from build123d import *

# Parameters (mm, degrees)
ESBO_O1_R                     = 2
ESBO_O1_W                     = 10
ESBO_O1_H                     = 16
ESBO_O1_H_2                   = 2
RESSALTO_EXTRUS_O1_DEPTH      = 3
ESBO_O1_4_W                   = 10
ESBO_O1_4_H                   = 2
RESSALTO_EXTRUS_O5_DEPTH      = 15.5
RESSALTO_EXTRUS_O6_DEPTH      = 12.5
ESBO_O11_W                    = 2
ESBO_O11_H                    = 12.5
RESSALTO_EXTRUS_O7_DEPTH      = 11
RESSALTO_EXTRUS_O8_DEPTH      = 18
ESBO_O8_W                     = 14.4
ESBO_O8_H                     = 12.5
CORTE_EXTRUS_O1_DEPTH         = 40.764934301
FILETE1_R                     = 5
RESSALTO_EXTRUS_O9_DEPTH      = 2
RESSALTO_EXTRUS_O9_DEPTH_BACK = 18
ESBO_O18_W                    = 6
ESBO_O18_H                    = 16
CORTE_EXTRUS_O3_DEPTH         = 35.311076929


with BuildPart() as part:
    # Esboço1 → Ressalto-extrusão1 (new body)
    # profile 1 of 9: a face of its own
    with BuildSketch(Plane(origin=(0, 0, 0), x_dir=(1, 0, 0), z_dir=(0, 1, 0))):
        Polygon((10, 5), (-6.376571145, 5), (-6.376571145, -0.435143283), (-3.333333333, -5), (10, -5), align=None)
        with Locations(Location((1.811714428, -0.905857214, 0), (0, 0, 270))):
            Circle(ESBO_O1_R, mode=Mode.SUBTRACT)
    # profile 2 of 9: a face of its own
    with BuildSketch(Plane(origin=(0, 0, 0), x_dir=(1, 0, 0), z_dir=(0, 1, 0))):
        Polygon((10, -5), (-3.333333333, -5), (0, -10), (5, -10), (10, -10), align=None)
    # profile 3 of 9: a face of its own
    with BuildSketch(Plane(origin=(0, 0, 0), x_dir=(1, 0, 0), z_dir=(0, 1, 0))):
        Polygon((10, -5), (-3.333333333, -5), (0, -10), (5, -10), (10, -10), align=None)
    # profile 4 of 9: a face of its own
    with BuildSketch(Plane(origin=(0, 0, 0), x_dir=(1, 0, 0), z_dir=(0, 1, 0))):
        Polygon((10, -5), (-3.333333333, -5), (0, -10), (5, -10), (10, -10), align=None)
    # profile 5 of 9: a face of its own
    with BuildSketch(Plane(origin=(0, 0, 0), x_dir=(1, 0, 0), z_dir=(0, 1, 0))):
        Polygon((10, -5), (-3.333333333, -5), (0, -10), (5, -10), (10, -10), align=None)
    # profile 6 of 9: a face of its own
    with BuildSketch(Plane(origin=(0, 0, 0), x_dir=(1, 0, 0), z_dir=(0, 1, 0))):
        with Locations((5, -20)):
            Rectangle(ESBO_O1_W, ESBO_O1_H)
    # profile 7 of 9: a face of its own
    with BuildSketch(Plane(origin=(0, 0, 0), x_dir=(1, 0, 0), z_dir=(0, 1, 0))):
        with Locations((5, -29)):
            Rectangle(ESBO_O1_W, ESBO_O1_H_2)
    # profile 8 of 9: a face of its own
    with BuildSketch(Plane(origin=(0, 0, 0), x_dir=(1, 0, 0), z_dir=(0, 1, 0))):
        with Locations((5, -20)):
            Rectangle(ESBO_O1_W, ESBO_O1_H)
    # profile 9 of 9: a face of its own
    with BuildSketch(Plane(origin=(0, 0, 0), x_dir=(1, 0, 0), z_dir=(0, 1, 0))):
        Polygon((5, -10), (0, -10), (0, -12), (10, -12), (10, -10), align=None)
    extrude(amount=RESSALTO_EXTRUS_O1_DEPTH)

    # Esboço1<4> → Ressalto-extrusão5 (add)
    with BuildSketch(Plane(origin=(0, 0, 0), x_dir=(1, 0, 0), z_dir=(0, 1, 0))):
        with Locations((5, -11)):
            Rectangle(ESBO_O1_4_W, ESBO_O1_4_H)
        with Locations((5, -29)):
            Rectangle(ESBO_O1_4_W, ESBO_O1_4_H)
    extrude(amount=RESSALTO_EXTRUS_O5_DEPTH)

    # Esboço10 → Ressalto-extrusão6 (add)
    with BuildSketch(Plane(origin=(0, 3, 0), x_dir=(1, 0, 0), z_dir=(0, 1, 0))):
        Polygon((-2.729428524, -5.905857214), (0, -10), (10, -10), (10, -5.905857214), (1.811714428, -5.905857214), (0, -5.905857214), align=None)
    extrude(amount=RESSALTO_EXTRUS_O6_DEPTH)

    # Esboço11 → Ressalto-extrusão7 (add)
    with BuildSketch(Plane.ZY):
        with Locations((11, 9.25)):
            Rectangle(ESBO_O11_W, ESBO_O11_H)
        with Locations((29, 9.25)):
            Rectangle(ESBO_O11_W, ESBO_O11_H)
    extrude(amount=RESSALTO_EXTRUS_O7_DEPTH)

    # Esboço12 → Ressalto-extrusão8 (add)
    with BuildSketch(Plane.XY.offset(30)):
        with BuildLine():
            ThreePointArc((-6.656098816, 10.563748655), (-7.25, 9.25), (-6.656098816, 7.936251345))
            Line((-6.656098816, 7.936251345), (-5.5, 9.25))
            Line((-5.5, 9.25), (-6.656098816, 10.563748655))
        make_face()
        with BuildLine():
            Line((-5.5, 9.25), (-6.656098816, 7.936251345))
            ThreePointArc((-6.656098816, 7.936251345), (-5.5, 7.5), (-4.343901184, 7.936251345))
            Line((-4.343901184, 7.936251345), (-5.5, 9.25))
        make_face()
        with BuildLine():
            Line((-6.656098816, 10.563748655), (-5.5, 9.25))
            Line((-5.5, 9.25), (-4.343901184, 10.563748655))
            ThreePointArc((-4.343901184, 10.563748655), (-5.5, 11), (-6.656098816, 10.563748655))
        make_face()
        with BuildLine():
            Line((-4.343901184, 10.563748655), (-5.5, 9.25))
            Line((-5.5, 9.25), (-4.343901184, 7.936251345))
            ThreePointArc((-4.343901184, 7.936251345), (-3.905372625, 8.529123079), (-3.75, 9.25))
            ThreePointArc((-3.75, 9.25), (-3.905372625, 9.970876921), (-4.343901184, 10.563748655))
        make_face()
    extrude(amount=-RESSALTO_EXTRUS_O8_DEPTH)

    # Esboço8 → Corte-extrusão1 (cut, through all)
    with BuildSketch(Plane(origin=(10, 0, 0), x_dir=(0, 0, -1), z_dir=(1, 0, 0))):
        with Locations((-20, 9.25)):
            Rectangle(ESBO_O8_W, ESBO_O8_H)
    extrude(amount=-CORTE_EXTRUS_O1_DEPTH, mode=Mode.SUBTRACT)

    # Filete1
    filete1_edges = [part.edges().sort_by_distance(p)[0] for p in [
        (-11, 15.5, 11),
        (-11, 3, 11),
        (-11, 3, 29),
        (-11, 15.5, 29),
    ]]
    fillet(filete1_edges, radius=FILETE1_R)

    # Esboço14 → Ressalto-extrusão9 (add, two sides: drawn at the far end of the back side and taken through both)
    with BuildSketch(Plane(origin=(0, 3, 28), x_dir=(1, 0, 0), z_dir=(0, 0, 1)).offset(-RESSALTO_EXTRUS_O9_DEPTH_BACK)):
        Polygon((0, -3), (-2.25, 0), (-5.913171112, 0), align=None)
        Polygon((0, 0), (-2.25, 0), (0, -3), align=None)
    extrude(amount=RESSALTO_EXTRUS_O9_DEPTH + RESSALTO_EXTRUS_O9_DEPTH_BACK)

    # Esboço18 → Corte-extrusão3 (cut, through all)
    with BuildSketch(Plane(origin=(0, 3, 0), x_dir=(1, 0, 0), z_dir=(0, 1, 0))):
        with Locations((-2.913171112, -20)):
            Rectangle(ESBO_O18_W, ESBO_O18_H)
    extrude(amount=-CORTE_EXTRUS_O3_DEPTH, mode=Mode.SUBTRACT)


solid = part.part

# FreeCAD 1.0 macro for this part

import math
import FreeCAD as App
import Part
import Sketcher

V = App.Vector
Q = App.Units.Quantity


def edges_at(feature, points):
    """Names of the edges that pass closest to the given points."""
    edges = feature.Shape.Edges
    near = lambda p: min(range(len(edges)), key=lambda i: edges[i].distToShape(Part.Vertex(*p))[0])
    return sorted({f"Edge{near(p) + 1}" for p in points})


def add_polygon(sketch, points):
    """Adds a closed chain of lines whose ends are joined by coincident constraints."""
    first, n = sketch.GeometryCount, len(points)
    for a, b in zip(points, points[1:] + points[:1]):
        sketch.addGeometry(Part.LineSegment(App.Vector(*a, 0), App.Vector(*b, 0)), False)
    for i in range(n):
        sketch.addConstraint(Sketcher.Constraint("Coincident", first + i, 2, first + (i + 1) % n, 1))

doc = App.newDocument("Part")
body = doc.addObject("PartDesign::Body", "Body")

# Sketch on XZ plane
sketch1 = body.newObject("Sketcher::SketchObject", "Sketch")
sketch1.AttachmentSupport = (doc.getObject("XZ_Plane"), [""])
sketch1.MapMode = "FlatFace"
add_polygon(sketch1, [(10, -5), (-6.4, -5), (-6.4, 0.4), (-3.3, 5), (0, 10), (0, 30), (10, 30)])  # lines 0-6
sketch1.addGeometry(Part.Circle(V(1.8, 0.9, 0), V(0, 0, 1), 2), False)  # 7
sketch1.addConstraint([
    Sketcher.Constraint("Horizontal", 0),
    Sketcher.Constraint("Vertical", 1),
    Sketcher.Constraint("Vertical", 4),
    Sketcher.Constraint("Horizontal", 5),
    Sketcher.Constraint("Vertical", 6),
    Sketcher.Constraint("PointOnObject", 3, 2, -2),
    Sketcher.Constraint("Parallel", 2, 3),
    Sketcher.Constraint("Diameter", 7, Q("4 mm")),
    Sketcher.Constraint("DistanceX", 5, 1, 5, 2, Q("10 mm")),
    Sketcher.Constraint("DistanceY", 4, 1, 4, 2, Q("20 mm")),
    Sketcher.Constraint("DistanceY", 6, 2, 6, 1, Q("35 mm")),
    Sketcher.Constraint("DistanceY", 0, 2, -1, 1, Q("5 mm")),
    Sketcher.Constraint("DistanceY", -1, 1, 2, 2, Q("5 mm")),
    Sketcher.Constraint("DistanceX", 0, 2, 0, 1, Q("16.376571 mm")),
    Sketcher.Constraint("DistanceY", 1, 1, 1, 2, Q("5.435143 mm")),
    Sketcher.Constraint("DistanceX", -1, 1, 7, 3, Q("1.811714 mm")),
    Sketcher.Constraint("DistanceY", -1, 1, 7, 3, Q("0.905857 mm")),
])
pad1 = body.newObject("PartDesign::Pad", "Pad")
pad1.Profile = sketch1
pad1.Length = 3
pad1.Reversed = True

# Sketch on XZ plane
sketch2 = body.newObject("Sketcher::SketchObject", "Sketch001")
sketch2.AttachmentSupport = (doc.getObject("XZ_Plane"), [""])
sketch2.MapMode = "FlatFace"
add_polygon(sketch2, [(0, 10), (0, 12), (10, 12), (10, 10)])  # lines 0-3
add_polygon(sketch2, [(0, 28), (0, 30), (10, 30), (10, 28)])  # lines 4-7
sketch2.addConstraint([
    Sketcher.Constraint("Vertical", 0),
    Sketcher.Constraint("Horizontal", 1),
    Sketcher.Constraint("Vertical", 2),
    Sketcher.Constraint("Horizontal", 3),
    Sketcher.Constraint("Vertical", 4),
    Sketcher.Constraint("Horizontal", 5),
    Sketcher.Constraint("Vertical", 6),
    Sketcher.Constraint("Horizontal", 7),
    Sketcher.Constraint("PointOnObject", 0, 2, -2),
    Sketcher.Constraint("PointOnObject", 4, 2, -2),
    Sketcher.Constraint("Vertical", 2, 2, 5, 2),
    Sketcher.Constraint("Equal", 2, 4),
    Sketcher.Constraint("DistanceX", 1, 1, 1, 2, Q("10 mm")),
    Sketcher.Constraint("DistanceY", 0, 1, 0, 2, Q("2 mm")),
    Sketcher.Constraint("DistanceY", -1, 1, 0, 2, Q("12 mm")),
    Sketcher.Constraint("DistanceY", -1, 1, 4, 2, Q("30 mm")),
])
pad2 = body.newObject("PartDesign::Pad", "Pad001")
pad2.Profile = sketch2
pad2.Length = 15.5
pad2.Reversed = True

# Sketch on XZ plane
sketch3 = body.newObject("Sketcher::SketchObject", "Sketch002")
sketch3.AttachmentSupport = (doc.getObject("XZ_Plane"), [""])
sketch3.MapMode = "FlatFace"
sketch3.AttachmentOffset = App.Placement(V(0, 0, -3), App.Rotation())
add_polygon(sketch3, [(-2.7, 5.9), (0, 10), (10, 10), (10, 5.9)])  # lines 0-3
sketch3.addConstraint([
    Sketcher.Constraint("Horizontal", 1),
    Sketcher.Constraint("Vertical", 2),
    Sketcher.Constraint("Horizontal", 3),
    Sketcher.Constraint("PointOnObject", 0, 2, -2),
    Sketcher.Constraint("DistanceX", 1, 1, 1, 2, Q("10 mm")),
    Sketcher.Constraint("DistanceY", -1, 1, 0, 2, Q("10 mm")),
    Sketcher.Constraint("DistanceX", 3, 2, 3, 1, Q("12.729429 mm")),
    Sketcher.Constraint("DistanceY", 2, 2, 2, 1, Q("4.094143 mm")),
])
pad3 = body.newObject("PartDesign::Pad", "Pad002")
pad3.Profile = sketch3
pad3.Length = 12.5
pad3.Reversed = True

# Sketch on YZ plane
sketch4 = body.newObject("Sketcher::SketchObject", "Sketch003")
sketch4.AttachmentSupport = (doc.getObject("YZ_Plane"), [""])
sketch4.MapMode = "FlatFace"
add_polygon(sketch4, [(15.5, 10), (3, 10), (3, 12), (15.5, 12)])  # lines 0-3
add_polygon(sketch4, [(15.5, 28), (3, 28), (3, 30), (15.5, 30)])  # lines 4-7
sketch4.addConstraint([
    Sketcher.Constraint("Horizontal", 0),
    Sketcher.Constraint("Vertical", 1),
    Sketcher.Constraint("Horizontal", 2),
    Sketcher.Constraint("Vertical", 3),
    Sketcher.Constraint("Horizontal", 4),
    Sketcher.Constraint("Vertical", 5),
    Sketcher.Constraint("Horizontal", 6),
    Sketcher.Constraint("Vertical", 7),
    Sketcher.Constraint("Vertical", 1, 2, 4, 2),
    Sketcher.Constraint("Vertical", 3, 2, 6, 2),
    Sketcher.Constraint("Equal", 3, 5),
    Sketcher.Constraint("DistanceY", 1, 1, 1, 2, Q("2 mm")),
    Sketcher.Constraint("DistanceX", 0, 2, 0, 1, Q("12.5 mm")),
    Sketcher.Constraint("DistanceX", -1, 1, 0, 2, Q("3 mm")),
    Sketcher.Constraint("DistanceY", -1, 1, 0, 2, Q("10 mm")),
    Sketcher.Constraint("DistanceY", -1, 1, 4, 2, Q("28 mm")),
])
pad4 = body.newObject("PartDesign::Pad", "Pad003")
pad4.Profile = sketch4
pad4.Length = 11
pad4.Reversed = True

# Sketch on XY plane
sketch5 = body.newObject("Sketcher::SketchObject", "Sketch004")
sketch5.AttachmentSupport = (doc.getObject("XY_Plane"), [""])
sketch5.MapMode = "FlatFace"
sketch5.AttachmentOffset = App.Placement(V(0, 0, 30), App.Rotation())
sketch5.addGeometry([
    Part.ArcOfCircle(Part.Circle(V(-5.5, 9.2, 0), V(0, 0, 1), 1.8), math.radians(-49), math.radians(0)),  # 0
    Part.ArcOfCircle(Part.Circle(V(-5.5, 9.2, 0), V(0, 0, 1), 1.8), math.radians(0), math.radians(49)),  # 1
    Part.ArcOfCircle(Part.Circle(V(-5.5, 9.2, 0), V(0, 0, 1), 1.8), math.radians(49), math.radians(131)),  # 2
    Part.ArcOfCircle(Part.Circle(V(-5.5, 9.2, 0), V(0, 0, 1), 1.8), math.radians(131), math.radians(229)),  # 3
    Part.ArcOfCircle(Part.Circle(V(-5.5, 9.3, 0), V(0, 0, 1), 1.8), math.radians(-131), math.radians(-49)),  # 4
], False)
sketch5.addConstraint([
    Sketcher.Constraint("Tangent", 0, 2, 1, 1),
    Sketcher.Constraint("Tangent", 1, 2, 2, 1),
    Sketcher.Constraint("Tangent", 2, 2, 3, 1),
    Sketcher.Constraint("Tangent", 3, 2, 4, 1),
    Sketcher.Constraint("Tangent", 4, 2, 0, 1),
    Sketcher.Constraint("Coincident", 2, 3, 0, 3),
    Sketcher.Constraint("Horizontal", 4, 3, 0, 2),
    Sketcher.Constraint("Horizontal", 1, 2, 2, 2),
    Sketcher.Constraint("Horizontal", 3, 2, 4, 2),
    Sketcher.Constraint("Vertical", 2, 2, 3, 2),
    Sketcher.Constraint("Radius", 0, Q("1.75 mm")),
    Sketcher.Constraint("DistanceX", 0, 3, -1, 1, Q("5.5 mm")),
    Sketcher.Constraint("DistanceY", -1, 1, 0, 3, Q("9.25 mm")),
    Sketcher.Constraint("DistanceX", 1, 2, -1, 1, Q("4.343901 mm")),
])
pad5 = body.newObject("PartDesign::Pad", "Pad004")
pad5.Profile = sketch5
pad5.Length = 18
pad5.Reversed = True

# Sketch on YZ plane
sketch6 = body.newObject("Sketcher::SketchObject", "Sketch005")
sketch6.AttachmentSupport = (doc.getObject("YZ_Plane"), [""])
sketch6.MapMode = "FlatFace"
sketch6.AttachmentOffset = App.Placement(V(0, 0, 10), App.Rotation())
add_polygon(sketch6, [(16, 27), (3, 27), (3, 13), (16, 13)])  # lines 0-3
sketch6.addConstraint([
    Sketcher.Constraint("Horizontal", 0),
    Sketcher.Constraint("Vertical", 1),
    Sketcher.Constraint("Horizontal", 2),
    Sketcher.Constraint("Vertical", 3),
    Sketcher.Constraint("DistanceX", 0, 2, 0, 1, Q("12.5 mm")),
    Sketcher.Constraint("DistanceY", 1, 2, 1, 1, Q("14.4 mm")),
    Sketcher.Constraint("DistanceX", -1, 1, 0, 2, Q("3 mm")),
    Sketcher.Constraint("DistanceY", -1, 1, 0, 2, Q("27.2 mm")),
])
pocket1 = body.newObject("PartDesign::Pocket", "Pocket")
pocket1.Profile = sketch6
pocket1.Type = "ThroughAll"
doc.recompute()

fillet = body.newObject("PartDesign::Fillet", "Fillet")
fillet.Base = (pocket1, edges_at(pocket1, [
    (-11, 15.5, 11),
    (-11, 3, 11),
    (-11, 3, 29),
    (-11, 15.5, 29),
]))
fillet.Radius = 5

# Sketch on XY plane
sketch7 = body.newObject("Sketcher::SketchObject", "Sketch006")
sketch7.AttachmentSupport = (doc.getObject("XY_Plane"), [""])
sketch7.MapMode = "FlatFace"
sketch7.AttachmentOffset = App.Placement(V(0, 0, 28), App.Rotation())
add_polygon(sketch7, [(-5.9, 3), (0, 0), (0, 3)])  # lines 0-2
sketch7.addConstraint([
    Sketcher.Constraint("Vertical", 1),
    Sketcher.Constraint("Horizontal", 2),
    Sketcher.Constraint("Coincident", 0, 2, -1, 1),
    Sketcher.Constraint("DistanceY", 1, 1, 1, 2, Q("3 mm")),
    Sketcher.Constraint("DistanceX", 2, 2, 2, 1, Q("5.913171 mm")),
])
pad6 = body.newObject("PartDesign::Pad", "Pad005")
pad6.Profile = sketch7
pad6.Type = "TwoLengths"
pad6.Length = 2
pad6.Length2 = 18

# Sketch on XZ plane
sketch8 = body.newObject("Sketcher::SketchObject", "Sketch007")
sketch8.AttachmentSupport = (doc.getObject("XZ_Plane"), [""])
sketch8.MapMode = "FlatFace"
sketch8.AttachmentOffset = App.Placement(V(0, 0, -3), App.Rotation())
add_polygon(sketch8, [(-6, 12), (-6, 28), (0, 28), (0, 12)])  # lines 0-3
sketch8.addConstraint([
    Sketcher.Constraint("Vertical", 0),
    Sketcher.Constraint("Horizontal", 1),
    Sketcher.Constraint("Vertical", 2),
    Sketcher.Constraint("Horizontal", 3),
    Sketcher.Constraint("DistanceX", 1, 1, 1, 2, Q("6 mm")),
    Sketcher.Constraint("DistanceY", 0, 1, 0, 2, Q("16 mm")),
    Sketcher.Constraint("DistanceY", -1, 1, 0, 2, Q("28 mm")),
    Sketcher.Constraint("DistanceX", 0, 2, -1, 1, Q("5.913171 mm")),
])
pocket2 = body.newObject("PartDesign::Pocket", "Pocket001")
pocket2.Profile = sketch8
pocket2.Type = "ThroughAll"
pocket2.Reversed = True

doc.recompute()
